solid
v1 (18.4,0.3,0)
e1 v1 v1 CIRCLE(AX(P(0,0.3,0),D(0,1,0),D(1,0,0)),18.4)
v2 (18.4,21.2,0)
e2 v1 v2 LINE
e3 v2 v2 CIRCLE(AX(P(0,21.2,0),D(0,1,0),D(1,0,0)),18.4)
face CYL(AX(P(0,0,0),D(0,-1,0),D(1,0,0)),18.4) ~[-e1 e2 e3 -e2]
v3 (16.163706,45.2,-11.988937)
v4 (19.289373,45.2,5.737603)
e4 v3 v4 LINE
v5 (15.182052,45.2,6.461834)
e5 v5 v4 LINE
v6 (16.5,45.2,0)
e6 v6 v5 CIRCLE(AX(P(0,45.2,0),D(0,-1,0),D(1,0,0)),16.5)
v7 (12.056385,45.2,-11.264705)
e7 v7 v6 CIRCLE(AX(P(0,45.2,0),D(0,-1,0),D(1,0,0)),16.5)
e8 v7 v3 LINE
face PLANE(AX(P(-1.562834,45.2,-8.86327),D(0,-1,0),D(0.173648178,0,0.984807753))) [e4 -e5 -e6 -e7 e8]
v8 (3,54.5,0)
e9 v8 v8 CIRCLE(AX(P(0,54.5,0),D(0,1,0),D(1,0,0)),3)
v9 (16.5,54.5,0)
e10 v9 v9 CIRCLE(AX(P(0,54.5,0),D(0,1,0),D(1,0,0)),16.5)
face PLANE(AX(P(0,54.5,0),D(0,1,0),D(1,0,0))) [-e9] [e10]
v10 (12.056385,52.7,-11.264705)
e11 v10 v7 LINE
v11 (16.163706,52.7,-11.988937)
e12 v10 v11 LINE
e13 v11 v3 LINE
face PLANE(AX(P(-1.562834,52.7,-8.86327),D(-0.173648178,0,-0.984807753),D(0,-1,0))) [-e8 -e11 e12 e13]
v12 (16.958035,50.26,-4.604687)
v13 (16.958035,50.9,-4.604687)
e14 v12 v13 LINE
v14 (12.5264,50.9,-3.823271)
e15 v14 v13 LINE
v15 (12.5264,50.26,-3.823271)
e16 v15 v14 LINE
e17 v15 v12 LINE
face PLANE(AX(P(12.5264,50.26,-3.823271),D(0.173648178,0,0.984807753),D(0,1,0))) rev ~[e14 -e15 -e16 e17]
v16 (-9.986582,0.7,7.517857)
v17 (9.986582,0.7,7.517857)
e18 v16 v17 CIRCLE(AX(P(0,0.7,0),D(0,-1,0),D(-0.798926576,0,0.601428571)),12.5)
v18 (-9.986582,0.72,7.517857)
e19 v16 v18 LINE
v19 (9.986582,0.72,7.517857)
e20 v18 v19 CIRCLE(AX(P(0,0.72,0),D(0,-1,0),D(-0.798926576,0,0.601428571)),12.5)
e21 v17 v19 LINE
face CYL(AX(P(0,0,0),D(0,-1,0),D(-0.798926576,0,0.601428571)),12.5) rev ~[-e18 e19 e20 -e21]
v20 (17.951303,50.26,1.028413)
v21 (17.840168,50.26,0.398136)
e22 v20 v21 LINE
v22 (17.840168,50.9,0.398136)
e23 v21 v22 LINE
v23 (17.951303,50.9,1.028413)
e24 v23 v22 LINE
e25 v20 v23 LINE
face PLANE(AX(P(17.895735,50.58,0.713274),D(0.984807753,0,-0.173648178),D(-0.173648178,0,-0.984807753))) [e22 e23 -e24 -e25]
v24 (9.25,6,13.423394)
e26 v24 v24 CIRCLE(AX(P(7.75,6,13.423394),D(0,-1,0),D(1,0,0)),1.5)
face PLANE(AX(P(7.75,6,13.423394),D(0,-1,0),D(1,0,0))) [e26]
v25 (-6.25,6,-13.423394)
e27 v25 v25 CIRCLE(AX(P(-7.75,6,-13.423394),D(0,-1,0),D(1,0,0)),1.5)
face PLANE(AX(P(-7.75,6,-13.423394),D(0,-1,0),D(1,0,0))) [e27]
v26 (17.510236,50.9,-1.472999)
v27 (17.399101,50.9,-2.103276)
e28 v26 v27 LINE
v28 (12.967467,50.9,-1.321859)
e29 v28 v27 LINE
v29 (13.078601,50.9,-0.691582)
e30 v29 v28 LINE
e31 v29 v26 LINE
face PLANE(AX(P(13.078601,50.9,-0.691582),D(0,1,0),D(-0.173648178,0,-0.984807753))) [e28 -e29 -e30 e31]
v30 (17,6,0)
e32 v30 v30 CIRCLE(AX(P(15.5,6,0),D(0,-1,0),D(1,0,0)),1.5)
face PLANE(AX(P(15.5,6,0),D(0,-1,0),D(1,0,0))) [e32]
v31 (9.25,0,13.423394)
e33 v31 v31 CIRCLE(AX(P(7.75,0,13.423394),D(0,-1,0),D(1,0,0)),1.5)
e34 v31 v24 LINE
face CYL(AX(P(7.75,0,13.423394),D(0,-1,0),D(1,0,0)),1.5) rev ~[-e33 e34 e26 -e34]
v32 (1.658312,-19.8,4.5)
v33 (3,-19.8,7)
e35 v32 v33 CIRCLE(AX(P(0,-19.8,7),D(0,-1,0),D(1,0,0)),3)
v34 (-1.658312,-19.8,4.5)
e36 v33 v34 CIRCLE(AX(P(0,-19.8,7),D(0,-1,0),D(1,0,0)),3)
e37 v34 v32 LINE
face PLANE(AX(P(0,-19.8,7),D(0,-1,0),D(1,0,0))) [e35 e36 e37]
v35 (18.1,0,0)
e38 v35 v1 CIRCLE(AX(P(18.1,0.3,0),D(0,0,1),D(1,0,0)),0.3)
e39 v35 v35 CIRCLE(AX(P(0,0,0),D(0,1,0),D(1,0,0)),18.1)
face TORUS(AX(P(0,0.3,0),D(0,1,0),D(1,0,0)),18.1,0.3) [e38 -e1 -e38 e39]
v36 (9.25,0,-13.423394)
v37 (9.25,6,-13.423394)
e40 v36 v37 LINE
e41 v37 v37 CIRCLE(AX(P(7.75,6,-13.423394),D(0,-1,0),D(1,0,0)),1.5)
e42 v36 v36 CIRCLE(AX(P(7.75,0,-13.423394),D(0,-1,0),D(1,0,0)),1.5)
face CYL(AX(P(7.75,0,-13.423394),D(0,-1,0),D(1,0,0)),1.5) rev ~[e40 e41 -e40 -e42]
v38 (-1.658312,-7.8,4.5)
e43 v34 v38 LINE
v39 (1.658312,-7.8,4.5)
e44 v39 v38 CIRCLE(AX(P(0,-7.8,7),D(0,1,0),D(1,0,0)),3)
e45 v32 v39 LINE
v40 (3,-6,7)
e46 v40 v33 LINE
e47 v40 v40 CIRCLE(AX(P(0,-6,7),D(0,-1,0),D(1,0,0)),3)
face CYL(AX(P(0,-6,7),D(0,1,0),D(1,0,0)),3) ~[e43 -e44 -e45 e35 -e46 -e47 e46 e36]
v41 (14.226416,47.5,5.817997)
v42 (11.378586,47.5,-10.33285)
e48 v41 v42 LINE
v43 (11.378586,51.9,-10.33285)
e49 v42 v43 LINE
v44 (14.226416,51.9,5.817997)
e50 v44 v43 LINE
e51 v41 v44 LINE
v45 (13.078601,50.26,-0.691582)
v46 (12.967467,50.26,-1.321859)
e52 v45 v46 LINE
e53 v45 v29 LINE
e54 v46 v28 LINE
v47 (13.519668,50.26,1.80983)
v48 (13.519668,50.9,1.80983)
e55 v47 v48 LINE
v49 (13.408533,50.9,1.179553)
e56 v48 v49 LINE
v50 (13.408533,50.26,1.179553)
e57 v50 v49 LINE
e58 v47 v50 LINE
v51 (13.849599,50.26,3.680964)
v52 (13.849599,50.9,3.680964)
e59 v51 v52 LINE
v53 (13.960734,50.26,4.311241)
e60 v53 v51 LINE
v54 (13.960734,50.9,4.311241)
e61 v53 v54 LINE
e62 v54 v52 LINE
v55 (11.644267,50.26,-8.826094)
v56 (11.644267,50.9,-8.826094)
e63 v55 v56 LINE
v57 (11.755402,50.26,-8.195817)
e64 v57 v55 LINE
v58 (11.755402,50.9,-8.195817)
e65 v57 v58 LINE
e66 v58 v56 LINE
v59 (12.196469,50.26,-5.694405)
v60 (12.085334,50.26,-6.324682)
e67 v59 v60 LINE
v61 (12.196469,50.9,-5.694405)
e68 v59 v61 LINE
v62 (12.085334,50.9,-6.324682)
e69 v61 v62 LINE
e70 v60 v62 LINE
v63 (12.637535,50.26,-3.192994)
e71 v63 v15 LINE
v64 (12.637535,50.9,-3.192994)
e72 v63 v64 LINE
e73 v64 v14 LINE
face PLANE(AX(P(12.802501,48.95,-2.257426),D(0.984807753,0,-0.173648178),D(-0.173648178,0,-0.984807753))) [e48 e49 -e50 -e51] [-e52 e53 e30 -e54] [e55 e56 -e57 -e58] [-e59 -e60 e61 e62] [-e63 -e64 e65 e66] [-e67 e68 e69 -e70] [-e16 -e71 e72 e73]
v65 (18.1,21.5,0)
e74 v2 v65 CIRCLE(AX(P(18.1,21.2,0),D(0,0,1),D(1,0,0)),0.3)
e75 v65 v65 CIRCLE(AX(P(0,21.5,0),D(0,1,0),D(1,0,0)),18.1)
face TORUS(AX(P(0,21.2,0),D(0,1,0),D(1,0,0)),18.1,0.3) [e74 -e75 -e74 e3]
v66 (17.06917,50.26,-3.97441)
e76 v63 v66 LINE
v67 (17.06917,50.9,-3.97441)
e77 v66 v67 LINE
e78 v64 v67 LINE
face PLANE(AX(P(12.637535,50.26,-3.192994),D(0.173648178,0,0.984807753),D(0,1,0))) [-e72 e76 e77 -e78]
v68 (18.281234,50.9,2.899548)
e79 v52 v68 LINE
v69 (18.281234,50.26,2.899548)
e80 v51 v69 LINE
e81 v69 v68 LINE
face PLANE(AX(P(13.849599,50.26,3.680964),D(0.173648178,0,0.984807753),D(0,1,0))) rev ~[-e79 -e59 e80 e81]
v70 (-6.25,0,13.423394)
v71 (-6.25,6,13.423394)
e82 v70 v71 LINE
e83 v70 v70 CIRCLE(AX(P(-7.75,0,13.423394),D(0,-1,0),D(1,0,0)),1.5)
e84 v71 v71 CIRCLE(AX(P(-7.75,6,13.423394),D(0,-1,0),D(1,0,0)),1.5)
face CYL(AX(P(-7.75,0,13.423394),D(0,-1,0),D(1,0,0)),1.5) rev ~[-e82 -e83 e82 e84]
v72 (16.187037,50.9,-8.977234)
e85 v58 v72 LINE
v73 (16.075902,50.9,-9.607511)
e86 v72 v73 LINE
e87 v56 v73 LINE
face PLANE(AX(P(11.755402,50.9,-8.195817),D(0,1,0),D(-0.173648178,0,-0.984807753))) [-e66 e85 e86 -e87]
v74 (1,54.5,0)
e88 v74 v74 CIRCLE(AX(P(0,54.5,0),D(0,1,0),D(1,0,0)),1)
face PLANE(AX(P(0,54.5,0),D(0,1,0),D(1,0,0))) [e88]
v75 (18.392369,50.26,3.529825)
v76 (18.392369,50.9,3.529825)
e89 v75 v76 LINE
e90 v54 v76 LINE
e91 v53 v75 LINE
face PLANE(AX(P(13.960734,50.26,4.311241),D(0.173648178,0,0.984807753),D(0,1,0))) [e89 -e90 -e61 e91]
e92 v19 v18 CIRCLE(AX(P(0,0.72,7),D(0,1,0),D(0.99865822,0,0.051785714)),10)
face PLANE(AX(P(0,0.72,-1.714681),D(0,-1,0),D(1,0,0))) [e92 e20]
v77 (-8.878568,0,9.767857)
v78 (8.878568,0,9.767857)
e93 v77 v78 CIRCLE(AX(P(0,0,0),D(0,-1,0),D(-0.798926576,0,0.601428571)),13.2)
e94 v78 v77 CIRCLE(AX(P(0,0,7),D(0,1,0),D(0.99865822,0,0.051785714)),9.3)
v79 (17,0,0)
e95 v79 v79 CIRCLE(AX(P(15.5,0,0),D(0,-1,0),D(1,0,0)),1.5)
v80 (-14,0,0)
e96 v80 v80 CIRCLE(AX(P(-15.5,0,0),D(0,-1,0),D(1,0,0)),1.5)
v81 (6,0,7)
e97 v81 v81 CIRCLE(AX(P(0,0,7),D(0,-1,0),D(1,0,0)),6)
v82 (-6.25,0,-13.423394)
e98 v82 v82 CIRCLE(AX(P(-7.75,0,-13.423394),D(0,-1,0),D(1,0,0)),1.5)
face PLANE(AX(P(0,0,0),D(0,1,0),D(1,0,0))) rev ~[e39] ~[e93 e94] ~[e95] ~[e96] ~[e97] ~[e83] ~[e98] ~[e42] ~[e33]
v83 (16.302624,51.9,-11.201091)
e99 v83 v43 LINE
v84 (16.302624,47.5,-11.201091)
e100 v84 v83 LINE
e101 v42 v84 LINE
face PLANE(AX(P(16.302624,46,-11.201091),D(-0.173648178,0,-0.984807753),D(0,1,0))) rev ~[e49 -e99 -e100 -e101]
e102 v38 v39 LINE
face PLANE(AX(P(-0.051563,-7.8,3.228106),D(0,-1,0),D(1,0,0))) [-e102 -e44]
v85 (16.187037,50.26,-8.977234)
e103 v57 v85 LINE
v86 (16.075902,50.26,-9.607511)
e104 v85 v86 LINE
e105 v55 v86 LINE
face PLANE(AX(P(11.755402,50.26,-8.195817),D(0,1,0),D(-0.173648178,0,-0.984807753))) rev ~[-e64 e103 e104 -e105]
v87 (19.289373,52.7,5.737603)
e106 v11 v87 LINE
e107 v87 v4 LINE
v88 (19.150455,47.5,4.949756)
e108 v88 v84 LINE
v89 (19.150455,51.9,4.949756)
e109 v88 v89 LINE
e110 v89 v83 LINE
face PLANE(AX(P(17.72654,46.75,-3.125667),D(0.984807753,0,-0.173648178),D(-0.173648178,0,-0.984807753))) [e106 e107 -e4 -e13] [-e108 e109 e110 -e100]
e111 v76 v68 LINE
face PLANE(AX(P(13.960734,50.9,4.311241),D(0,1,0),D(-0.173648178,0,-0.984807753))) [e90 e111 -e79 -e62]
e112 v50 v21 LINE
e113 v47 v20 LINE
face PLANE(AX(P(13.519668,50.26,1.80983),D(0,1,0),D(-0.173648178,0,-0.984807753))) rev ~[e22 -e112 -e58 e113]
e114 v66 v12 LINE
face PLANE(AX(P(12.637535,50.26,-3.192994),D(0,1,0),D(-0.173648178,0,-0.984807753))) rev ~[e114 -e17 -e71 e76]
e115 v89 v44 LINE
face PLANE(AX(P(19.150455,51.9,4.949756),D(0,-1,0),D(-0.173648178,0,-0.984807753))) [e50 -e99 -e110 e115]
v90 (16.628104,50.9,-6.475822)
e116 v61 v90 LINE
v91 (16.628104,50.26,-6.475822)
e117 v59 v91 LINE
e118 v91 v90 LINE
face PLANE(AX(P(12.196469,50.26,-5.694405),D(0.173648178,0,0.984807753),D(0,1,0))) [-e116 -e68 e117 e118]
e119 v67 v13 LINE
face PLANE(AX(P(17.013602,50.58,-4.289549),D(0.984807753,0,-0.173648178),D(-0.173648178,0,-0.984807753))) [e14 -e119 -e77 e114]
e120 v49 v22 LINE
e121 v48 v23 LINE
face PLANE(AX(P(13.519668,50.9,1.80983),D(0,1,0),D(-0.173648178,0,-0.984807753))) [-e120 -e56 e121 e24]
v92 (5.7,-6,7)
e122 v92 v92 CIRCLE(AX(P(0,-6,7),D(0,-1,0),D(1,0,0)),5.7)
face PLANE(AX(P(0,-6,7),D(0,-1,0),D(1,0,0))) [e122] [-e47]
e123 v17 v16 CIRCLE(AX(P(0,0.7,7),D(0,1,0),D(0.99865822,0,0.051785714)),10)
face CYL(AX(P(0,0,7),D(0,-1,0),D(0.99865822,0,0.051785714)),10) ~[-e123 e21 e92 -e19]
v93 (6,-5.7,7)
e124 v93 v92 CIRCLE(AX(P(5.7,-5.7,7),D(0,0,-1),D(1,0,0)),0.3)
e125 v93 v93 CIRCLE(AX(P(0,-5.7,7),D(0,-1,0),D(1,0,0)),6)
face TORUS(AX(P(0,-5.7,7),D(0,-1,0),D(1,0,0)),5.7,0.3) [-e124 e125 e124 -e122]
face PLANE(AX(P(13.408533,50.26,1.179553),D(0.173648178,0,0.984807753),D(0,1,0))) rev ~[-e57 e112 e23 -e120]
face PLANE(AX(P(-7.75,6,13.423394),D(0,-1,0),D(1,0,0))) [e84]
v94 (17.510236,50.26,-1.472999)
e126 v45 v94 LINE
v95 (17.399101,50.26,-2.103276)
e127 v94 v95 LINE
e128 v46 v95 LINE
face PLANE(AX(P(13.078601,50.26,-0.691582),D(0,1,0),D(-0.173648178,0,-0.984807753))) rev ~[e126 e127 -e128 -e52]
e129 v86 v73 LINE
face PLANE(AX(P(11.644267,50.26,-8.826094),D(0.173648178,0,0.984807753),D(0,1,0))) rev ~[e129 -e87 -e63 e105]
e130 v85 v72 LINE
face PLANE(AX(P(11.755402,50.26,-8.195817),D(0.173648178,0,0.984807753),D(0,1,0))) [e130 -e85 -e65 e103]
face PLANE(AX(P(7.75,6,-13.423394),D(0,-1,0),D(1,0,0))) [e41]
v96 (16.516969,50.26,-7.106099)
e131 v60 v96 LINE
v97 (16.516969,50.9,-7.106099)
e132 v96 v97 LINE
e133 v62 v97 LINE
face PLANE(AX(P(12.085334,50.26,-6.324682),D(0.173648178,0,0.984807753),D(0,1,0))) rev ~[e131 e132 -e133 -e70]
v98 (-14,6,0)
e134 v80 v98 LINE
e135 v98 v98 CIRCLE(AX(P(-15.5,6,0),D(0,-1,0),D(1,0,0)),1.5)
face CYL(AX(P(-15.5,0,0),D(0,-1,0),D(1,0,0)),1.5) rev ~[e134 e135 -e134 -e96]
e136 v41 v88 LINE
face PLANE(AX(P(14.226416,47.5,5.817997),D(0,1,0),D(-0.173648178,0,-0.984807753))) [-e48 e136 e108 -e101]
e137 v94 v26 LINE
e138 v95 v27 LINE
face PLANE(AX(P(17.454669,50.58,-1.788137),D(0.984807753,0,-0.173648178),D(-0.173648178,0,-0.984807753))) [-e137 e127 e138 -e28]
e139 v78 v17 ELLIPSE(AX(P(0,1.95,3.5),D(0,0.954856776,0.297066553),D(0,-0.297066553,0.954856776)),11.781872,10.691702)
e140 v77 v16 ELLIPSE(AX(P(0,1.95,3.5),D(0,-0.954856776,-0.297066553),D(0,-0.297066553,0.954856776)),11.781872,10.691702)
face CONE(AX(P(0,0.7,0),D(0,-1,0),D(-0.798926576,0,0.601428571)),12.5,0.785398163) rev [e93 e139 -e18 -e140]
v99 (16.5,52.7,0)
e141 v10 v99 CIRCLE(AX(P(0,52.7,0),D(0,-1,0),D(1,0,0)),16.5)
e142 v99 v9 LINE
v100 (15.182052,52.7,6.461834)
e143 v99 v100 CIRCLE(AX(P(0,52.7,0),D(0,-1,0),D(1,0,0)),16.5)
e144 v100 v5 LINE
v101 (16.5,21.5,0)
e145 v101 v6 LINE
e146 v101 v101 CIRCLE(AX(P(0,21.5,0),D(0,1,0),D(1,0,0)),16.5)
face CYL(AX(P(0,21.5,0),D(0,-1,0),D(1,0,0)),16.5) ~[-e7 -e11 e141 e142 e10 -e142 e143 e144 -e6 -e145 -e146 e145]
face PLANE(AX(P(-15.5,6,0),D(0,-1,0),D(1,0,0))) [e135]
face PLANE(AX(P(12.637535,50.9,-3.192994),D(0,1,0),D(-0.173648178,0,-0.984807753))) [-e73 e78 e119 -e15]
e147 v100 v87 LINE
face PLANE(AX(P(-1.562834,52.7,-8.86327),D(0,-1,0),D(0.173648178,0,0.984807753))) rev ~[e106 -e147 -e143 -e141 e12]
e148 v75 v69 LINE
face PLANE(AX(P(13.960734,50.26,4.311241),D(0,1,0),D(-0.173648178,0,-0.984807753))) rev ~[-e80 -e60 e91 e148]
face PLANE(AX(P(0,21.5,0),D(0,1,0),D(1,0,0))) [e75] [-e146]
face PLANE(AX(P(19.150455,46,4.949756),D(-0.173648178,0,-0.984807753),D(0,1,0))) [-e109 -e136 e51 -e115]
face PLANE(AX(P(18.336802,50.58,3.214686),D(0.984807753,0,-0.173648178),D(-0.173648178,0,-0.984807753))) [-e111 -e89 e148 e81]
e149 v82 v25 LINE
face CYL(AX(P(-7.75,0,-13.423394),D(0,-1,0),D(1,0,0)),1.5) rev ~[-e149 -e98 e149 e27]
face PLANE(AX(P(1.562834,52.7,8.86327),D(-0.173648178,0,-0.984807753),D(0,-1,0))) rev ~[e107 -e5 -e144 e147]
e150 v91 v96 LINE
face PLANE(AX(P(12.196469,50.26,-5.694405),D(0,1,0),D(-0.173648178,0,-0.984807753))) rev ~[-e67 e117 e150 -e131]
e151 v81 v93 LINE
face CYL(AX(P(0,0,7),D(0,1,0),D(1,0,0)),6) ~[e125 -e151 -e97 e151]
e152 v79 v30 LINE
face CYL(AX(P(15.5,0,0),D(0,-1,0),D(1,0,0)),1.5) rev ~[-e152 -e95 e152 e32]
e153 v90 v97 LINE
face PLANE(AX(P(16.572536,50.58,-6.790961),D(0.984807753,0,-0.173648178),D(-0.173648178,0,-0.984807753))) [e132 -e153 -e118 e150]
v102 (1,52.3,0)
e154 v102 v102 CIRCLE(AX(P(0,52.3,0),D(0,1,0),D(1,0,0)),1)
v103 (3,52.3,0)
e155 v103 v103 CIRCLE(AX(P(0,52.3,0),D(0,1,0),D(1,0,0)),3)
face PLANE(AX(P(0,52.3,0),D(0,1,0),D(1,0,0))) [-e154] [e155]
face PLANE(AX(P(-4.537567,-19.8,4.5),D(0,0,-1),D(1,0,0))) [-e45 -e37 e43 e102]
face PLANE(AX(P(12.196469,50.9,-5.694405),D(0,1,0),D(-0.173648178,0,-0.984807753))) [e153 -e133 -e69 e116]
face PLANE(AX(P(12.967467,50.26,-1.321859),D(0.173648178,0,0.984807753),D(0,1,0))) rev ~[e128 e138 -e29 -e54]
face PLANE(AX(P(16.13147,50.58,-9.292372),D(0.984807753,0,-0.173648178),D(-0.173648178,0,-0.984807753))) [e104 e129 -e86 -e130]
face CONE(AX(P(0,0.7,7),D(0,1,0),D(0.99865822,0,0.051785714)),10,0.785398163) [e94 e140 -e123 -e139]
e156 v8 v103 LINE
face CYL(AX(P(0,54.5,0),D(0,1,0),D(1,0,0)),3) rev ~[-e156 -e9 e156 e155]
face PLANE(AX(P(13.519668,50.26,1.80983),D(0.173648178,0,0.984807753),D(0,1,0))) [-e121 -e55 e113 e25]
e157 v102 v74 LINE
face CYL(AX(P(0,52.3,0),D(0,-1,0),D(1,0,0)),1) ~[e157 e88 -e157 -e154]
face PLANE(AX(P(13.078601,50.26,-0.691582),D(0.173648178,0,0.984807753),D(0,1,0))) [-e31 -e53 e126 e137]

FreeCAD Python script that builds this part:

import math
import FreeCAD as App
import Part
import Sketcher
Q = App.Units.Quantity


def edges_at(feature, points):
    """Names of the edges that pass closest to the given points."""
    edges = feature.Shape.Edges
    near = lambda p: min(range(len(edges)), key=lambda i: edges[i].distToShape(Part.Vertex(*p))[0])
    return sorted({f"Edge{near(p) + 1}" for p in points})

doc = App.newDocument("Part")
body = doc.addObject("PartDesign::Body", "Body")

# Sketch on XZ plane
sketch1 = doc.addObject("Sketcher::SketchObject", "Sketch")
body.addObject(sketch1)
sketch1.AttachmentSupport = (doc.XZ_Plane, [""])
sketch1.MapMode = "FlatFace"
sketch1.addGeometry(Part.Circle(App.Vector(0, 0, 0), App.Vector(0, 0, 1), 18.4), False)
sketch1.addConstraint(Sketcher.Constraint("Coincident", 0, 3, -1, 1))
sketch1.addConstraint(Sketcher.Constraint("Diameter", 0, Q("36.8 mm")))
pad1 = doc.addObject("PartDesign::Pad", "Pad")
body.addObject(pad1)
pad1.Profile = sketch1
pad1.Length = 21.5
pad1.Reversed = True

# Sketch on XZ plane
sketch2 = doc.addObject("Sketcher::SketchObject", "Sketch001")
body.addObject(sketch2)
sketch2.AttachmentSupport = (doc.XZ_Plane, [""])
sketch2.MapMode = "FlatFace"
sketch2.addGeometry(Part.Circle(App.Vector(0, 7, 0), App.Vector(0, 0, 1), 6), False)
sketch2.addConstraint(Sketcher.Constraint("PointOnObject", 0, 3, -2))
sketch2.addConstraint(Sketcher.Constraint("Diameter", 0, Q("12 mm")))
sketch2.addConstraint(Sketcher.Constraint("DistanceY", -1, 1, 0, 3, Q("7 mm")))
pad2 = doc.addObject("PartDesign::Pad", "Pad001")
body.addObject(pad2)
pad2.Profile = sketch2
pad2.Length = 6

# Sketch on XZ plane
sketch3 = doc.addObject("Sketcher::SketchObject", "Sketch002")
body.addObject(sketch3)
sketch3.AttachmentSupport = (doc.XZ_Plane, [""])
sketch3.MapMode = "FlatFace"
sketch3.AttachmentOffset = App.Placement(App.Vector(0, 0, 6), App.Rotation())
sketch3.addGeometry(Part.Circle(App.Vector(0, 7, 0), App.Vector(0, 0, 1), 3), False)
sketch3.addConstraint(Sketcher.Constraint("PointOnObject", 0, 3, -2))
sketch3.addConstraint(Sketcher.Constraint("Diameter", 0, Q("6 mm")))
sketch3.addConstraint(Sketcher.Constraint("DistanceY", -1, 1, 0, 3, Q("7 mm")))
pad3 = doc.addObject("PartDesign::Pad", "Pad002")
body.addObject(pad3)
pad3.Profile = sketch3
pad3.Length = 13.8

# Sketch on XZ plane
sketch4 = doc.addObject("Sketcher::SketchObject", "Sketch003")
body.addObject(sketch4)
sketch4.AttachmentSupport = (doc.XZ_Plane, [""])
sketch4.MapMode = "FlatFace"
sketch4.AttachmentOffset = App.Placement(App.Vector(0, 0, 19.8), App.Rotation())
sketch4.addGeometry(Part.LineSegment(App.Vector(-4.537567, 4.5, 0), App.Vector(-4.537567, 1.956212, 0)), False)
sketch4.addGeometry(Part.LineSegment(App.Vector(-4.537567, 1.956212, 0), App.Vector(4.434441, 1.956212, 0)), False)
sketch4.addGeometry(Part.LineSegment(App.Vector(4.434441, 1.956212, 0), App.Vector(4.434441, 4.5, 0)), False)
sketch4.addGeometry(Part.LineSegment(App.Vector(4.434441, 4.5, 0), App.Vector(-4.537567, 4.5, 0)), False)
sketch4.addConstraint(Sketcher.Constraint("Coincident", 0, 2, 1, 1))
sketch4.addConstraint(Sketcher.Constraint("Coincident", 1, 2, 2, 1))
sketch4.addConstraint(Sketcher.Constraint("Coincident", 2, 2, 3, 1))
sketch4.addConstraint(Sketcher.Constraint("Coincident", 3, 2, 0, 1))
sketch4.addConstraint(Sketcher.Constraint("Vertical", 0))
sketch4.addConstraint(Sketcher.Constraint("Horizontal", 1))
sketch4.addConstraint(Sketcher.Constraint("Vertical", 2))
sketch4.addConstraint(Sketcher.Constraint("Horizontal", 3))
sketch4.addConstraint(Sketcher.Constraint("DistanceY", -1, 1, 2, 2, Q("4.5 mm")))
sketch4.addConstraint(Sketcher.Constraint("DistanceX", 1, 1, 1, 2, Q("8.972008 mm")))
sketch4.addConstraint(Sketcher.Constraint("DistanceY", 0, 2, 0, 1, Q("2.543788 mm")))
sketch4.addConstraint(Sketcher.Constraint("DistanceX", -1, 1, 1, 2, Q("4.434441 mm")))
pocket1 = doc.addObject("PartDesign::Pocket", "Pocket")
body.addObject(pocket1)
pocket1.Profile = sketch4
pocket1.Length = 12

# Sketch on XZ plane
sketch5 = doc.addObject("Sketcher::SketchObject", "Sketch004")
body.addObject(sketch5)
sketch5.AttachmentSupport = (doc.XZ_Plane, [""])
sketch5.MapMode = "FlatFace"
sketch5.addGeometry(Part.Circle(App.Vector(-15.5, 0, 0), App.Vector(0, 0, 1), 1.5), False)
sketch5.addGeometry(Part.Circle(App.Vector(-7.75, 13.423394, 0), App.Vector(0, 0, 1), 1.5), False)
sketch5.addGeometry(Part.Circle(App.Vector(7.75, 13.423394, 0), App.Vector(0, 0, 1), 1.5), False)
sketch5.addGeometry(Part.Circle(App.Vector(15.5, 0, 0), App.Vector(0, 0, 1), 1.5), False)
sketch5.addGeometry(Part.Circle(App.Vector(7.75, -13.423394, 0), App.Vector(0, 0, 1), 1.5), False)
sketch5.addGeometry(Part.Circle(App.Vector(-7.75, -13.423394, 0), App.Vector(0, 0, 1), 1.5), False)
sketch5.addConstraint(Sketcher.Constraint("Equal", 0, 1))
sketch5.addConstraint(Sketcher.Constraint("Equal", 1, 2))
sketch5.addConstraint(Sketcher.Constraint("Equal", 2, 3))
sketch5.addConstraint(Sketcher.Constraint("Equal", 3, 4))
sketch5.addConstraint(Sketcher.Constraint("Equal", 4, 5))
sketch5.addConstraint(Sketcher.Constraint("Symmetric", 0, 3, 3, 3, -1, 1))
sketch5.addConstraint(Sketcher.Constraint("Symmetric", 1, 3, 4, 3, -1, 1))
sketch5.addConstraint(Sketcher.Constraint("Symmetric", 2, 3, 5, 3, -1, 1))
sketch5.addConstraint(Sketcher.Constraint("Symmetric", 1, 3, 2, 3, -2))
sketch5.addConstraint(Sketcher.Constraint("PointOnObject", 0, 3, -1))
sketch5.addConstraint(Sketcher.Constraint("Diameter", 0, Q("3 mm")))
sketch5.addConstraint(Sketcher.Constraint("DistanceX", 0, 3, 3, 3, Q("31 mm")))
sketch5.addConstraint(Sketcher.Constraint("DistanceX", 1, 3, 2, 3, Q("15.5 mm")))
sketch5.addConstraint(Sketcher.Constraint("DistanceY", -1, 1, 1, 3, Q("13.423394 mm")))
pocket2 = doc.addObject("PartDesign::Pocket", "Pocket001")
body.addObject(pocket2)
pocket2.Profile = sketch5
pocket2.Length = 6

# Sketch on XZ plane
sketch6 = doc.addObject("Sketcher::SketchObject", "Sketch005")
body.addObject(sketch6)
sketch6.AttachmentSupport = (doc.XZ_Plane, [""])
sketch6.MapMode = "FlatFace"
sketch6.addGeometry(Part.ArcOfCircle(Part.Circle(App.Vector(0, 0, 0), App.Vector(0, 0, 1), 12.5), math.radians(143.02772), math.radians(396.97228)), False)
sketch6.addGeometry(Part.ArcOfCircle(Part.Circle(App.Vector(0, 7, 0), App.Vector(0, 0, 1), 10), math.radians(177.031569), math.radians(362.968431)), False)
sketch6.addConstraint(Sketcher.Constraint("Coincident", 0, 1, 1, 1))
sketch6.addConstraint(Sketcher.Constraint("Coincident", 1, 2, 0, 2))
sketch6.addConstraint(Sketcher.Constraint("Coincident", 0, 3, -1, 1))
sketch6.addConstraint(Sketcher.Constraint("PointOnObject", 1, 3, -2))
sketch6.addConstraint(Sketcher.Constraint("Radius", 1, Q("10 mm")))
sketch6.addConstraint(Sketcher.Constraint("Radius", 0, Q("12.5 mm")))
sketch6.addConstraint(Sketcher.Constraint("DistanceY", -1, 1, 1, 3, Q("7 mm")))
pocket3 = doc.addObject("PartDesign::Pocket", "Pocket002")
body.addObject(pocket3)
pocket3.Profile = sketch6
pocket3.Length = 0.72

# Sketch on XZ plane
sketch7 = doc.addObject("Sketcher::SketchObject", "Sketch006")
body.addObject(sketch7)
sketch7.AttachmentSupport = (doc.XZ_Plane, [""])
sketch7.MapMode = "FlatFace"
sketch7.AttachmentOffset = App.Placement(App.Vector(0, 0, -21.5), App.Rotation())
sketch7.addGeometry(Part.Circle(App.Vector(0, 0, 0), App.Vector(0, 0, 1), 16.5), False)
sketch7.addConstraint(Sketcher.Constraint("Coincident", 0, 3, -1, 1))
sketch7.addConstraint(Sketcher.Constraint("Diameter", 0, Q("33 mm")))
pad4 = doc.addObject("PartDesign::Pad", "Pad003")
body.addObject(pad4)
pad4.Profile = sketch7
pad4.Length = 33
pad4.Reversed = True

# Sketch on an angled plane
sketch8 = doc.addObject("Sketcher::SketchObject", "Sketch007")
body.addObject(sketch8)
sketch8.Placement = App.Placement(App.Vector(0, 0, 0), App.Rotation(App.Vector(0, -1, 0), App.Vector(0.173648178, 0, 0.984807753), App.Vector(-0.984807753, 0, 0.173648178), "ZXY"))
sketch8.addGeometry(Part.LineSegment(App.Vector(-52.7, 9, 0), App.Vector(-52.7, -9, 0)), False)
sketch8.addGeometry(Part.LineSegment(App.Vector(-52.7, -9, 0), App.Vector(-45.2, -9, 0)), False)
sketch8.addGeometry(Part.LineSegment(App.Vector(-45.2, -9, 0), App.Vector(-45.2, 9, 0)), False)
sketch8.addGeometry(Part.LineSegment(App.Vector(-45.2, 9, 0), App.Vector(-52.7, 9, 0)), False)
sketch8.addConstraint(Sketcher.Constraint("Coincident", 0, 2, 1, 1))
sketch8.addConstraint(Sketcher.Constraint("Coincident", 1, 2, 2, 1))
sketch8.addConstraint(Sketcher.Constraint("Coincident", 2, 2, 3, 1))
sketch8.addConstraint(Sketcher.Constraint("Coincident", 3, 2, 0, 1))
sketch8.addConstraint(Sketcher.Constraint("Vertical", 0))
sketch8.addConstraint(Sketcher.Constraint("Horizontal", 1))
sketch8.addConstraint(Sketcher.Constraint("Vertical", 2))
sketch8.addConstraint(Sketcher.Constraint("Horizontal", 3))
sketch8.addConstraint(Sketcher.Constraint("DistanceY", 0, 2, 0, 1, Q("18 mm")))
sketch8.addConstraint(Sketcher.Constraint("DistanceX", 1, 1, 1, 2, Q("7.5 mm")))
sketch8.addConstraint(Sketcher.Constraint("DistanceY", 0, 2, -1, 1, Q("9 mm")))
sketch8.addConstraint(Sketcher.Constraint("DistanceX", 0, 2, -1, 1, Q("52.7 mm")))
pad5 = doc.addObject("PartDesign::Pad", "Pad004")
body.addObject(pad5)
pad5.Profile = sketch8
pad5.Length = 18
pad5.Reversed = True

# Sketch on an angled plane
sketch9 = doc.addObject("Sketcher::SketchObject", "Sketch008")
body.addObject(sketch9)
sketch9.Placement = App.Placement(App.Vector(17.72654, 0, -3.125667), App.Rotation(App.Vector(-0.173648178, 0, -0.984807753), App.Vector(0, 1, 0), App.Vector(0.984807753, 0, -0.173648178), "ZXY"))
sketch9.addGeometry(Part.LineSegment(App.Vector(-8.2, 51.9, 0), App.Vector(-8.2, 46, 0)), False)
sketch9.addGeometry(Part.LineSegment(App.Vector(-8.2, 46, 0), App.Vector(8.2, 46, 0)), False)
sketch9.addGeometry(Part.LineSegment(App.Vector(8.2, 46, 0), App.Vector(8.2, 51.9, 0)), False)
sketch9.addGeometry(Part.LineSegment(App.Vector(8.2, 51.9, 0), App.Vector(-8.2, 51.9, 0)), False)
sketch9.addConstraint(Sketcher.Constraint("Coincident", 0, 2, 1, 1))
sketch9.addConstraint(Sketcher.Constraint("Coincident", 1, 2, 2, 1))
sketch9.addConstraint(Sketcher.Constraint("Coincident", 2, 2, 3, 1))
sketch9.addConstraint(Sketcher.Constraint("Coincident", 3, 2, 0, 1))
sketch9.addConstraint(Sketcher.Constraint("Vertical", 0))
sketch9.addConstraint(Sketcher.Constraint("Horizontal", 1))
sketch9.addConstraint(Sketcher.Constraint("Vertical", 2))
sketch9.addConstraint(Sketcher.Constraint("Horizontal", 3))
sketch9.addConstraint(Sketcher.Constraint("DistanceX", 1, 1, 1, 2, Q("16.4 mm")))
sketch9.addConstraint(Sketcher.Constraint("DistanceY", 0, 2, 0, 1, Q("5.9 mm")))
sketch9.addConstraint(Sketcher.Constraint("DistanceY", -1, 1, 0, 2, Q("46 mm")))
sketch9.addConstraint(Sketcher.Constraint("DistanceX", 0, 2, -1, 1, Q("8.2 mm")))
pocket4 = doc.addObject("PartDesign::Pocket", "Pocket003")
body.addObject(pocket4)
pocket4.Profile = sketch9
pocket4.Length = 5

# Sketch on an angled plane
sketch10 = doc.addObject("Sketcher::SketchObject", "Sketch009")
body.addObject(sketch10)
sketch10.Placement = App.Placement(App.Vector(12.802501, 0, -2.257426), App.Rotation(App.Vector(-0.173648178, 0, -0.984807753), App.Vector(0, 1, 0), App.Vector(0.984807753, 0, -0.173648178), "ZXY"))
sketch10.addGeometry(Part.LineSegment(App.Vector(-1.59, 50.9, 0), App.Vector(-1.59, 50.26, 0)), False)
sketch10.addGeometry(Part.LineSegment(App.Vector(-1.59, 50.26, 0), App.Vector(-0.95, 50.26, 0)), False)
sketch10.addGeometry(Part.LineSegment(App.Vector(-0.95, 50.26, 0), App.Vector(-0.95, 50.9, 0)), False)
sketch10.addGeometry(Part.LineSegment(App.Vector(-0.95, 50.9, 0), App.Vector(-1.59, 50.9, 0)), False)
sketch10.addGeometry(Part.LineSegment(App.Vector(0.95, 50.9, 0), App.Vector(0.95, 50.26, 0)), False)
sketch10.addGeometry(Part.LineSegment(App.Vector(0.95, 50.26, 0), App.Vector(1.59, 50.26, 0)), False)
sketch10.addGeometry(Part.LineSegment(App.Vector(1.59, 50.26, 0), App.Vector(1.59, 50.9, 0)), False)
sketch10.addGeometry(Part.LineSegment(App.Vector(1.59, 50.9, 0), App.Vector(0.95, 50.9, 0)), False)
sketch10.addGeometry(Part.LineSegment(App.Vector(3.49, 50.9, 0), App.Vector(3.49, 50.26, 0)), False)
sketch10.addGeometry(Part.LineSegment(App.Vector(3.49, 50.26, 0), App.Vector(4.13, 50.26, 0)), False)
sketch10.addGeometry(Part.LineSegment(App.Vector(4.13, 50.26, 0), App.Vector(4.13, 50.9, 0)), False)
sketch10.addGeometry(Part.LineSegment(App.Vector(4.13, 50.9, 0), App.Vector(3.49, 50.9, 0)), False)
sketch10.addGeometry(Part.LineSegment(App.Vector(6.03, 50.9, 0), App.Vector(6.03, 50.26, 0)), False)
sketch10.addGeometry(Part.LineSegment(App.Vector(6.03, 50.26, 0), App.Vector(6.67, 50.26, 0)), False)
sketch10.addGeometry(Part.LineSegment(App.Vector(6.67, 50.26, 0), App.Vector(6.67, 50.9, 0)), False)
sketch10.addGeometry(Part.LineSegment(App.Vector(6.67, 50.9, 0), App.Vector(6.03, 50.9, 0)), False)
sketch10.addGeometry(Part.LineSegment(App.Vector(-6.67, 50.9, 0), App.Vector(-6.67, 50.26, 0)), False)
sketch10.addGeometry(Part.LineSegment(App.Vector(-6.67, 50.26, 0), App.Vector(-6.03, 50.26, 0)), False)
sketch10.addGeometry(Part.LineSegment(App.Vector(-6.03, 50.26, 0), App.Vector(-6.03, 50.9, 0)), False)
sketch10.addGeometry(Part.LineSegment(App.Vector(-6.03, 50.9, 0), App.Vector(-6.67, 50.9, 0)), False)
sketch10.addGeometry(Part.LineSegment(App.Vector(-4.13, 50.9, 0), App.Vector(-4.13, 50.26, 0)), False)
sketch10.addGeometry(Part.LineSegment(App.Vector(-4.13, 50.26, 0), App.Vector(-3.49, 50.26, 0)), False)
sketch10.addGeometry(Part.LineSegment(App.Vector(-3.49, 50.26, 0), App.Vector(-3.49, 50.9, 0)), False)
sketch10.addGeometry(Part.LineSegment(App.Vector(-3.49, 50.9, 0), App.Vector(-4.13, 50.9, 0)), False)
sketch10.addConstraint(Sketcher.Constraint("Coincident", 0, 2, 1, 1))
sketch10.addConstraint(Sketcher.Constraint("Coincident", 1, 2, 2, 1))
sketch10.addConstraint(Sketcher.Constraint("Coincident", 2, 2, 3, 1))
sketch10.addConstraint(Sketcher.Constraint("Coincident", 3, 2, 0, 1))
sketch10.addConstraint(Sketcher.Constraint("Coincident", 4, 2, 5, 1))
sketch10.addConstraint(Sketcher.Constraint("Coincident", 5, 2, 6, 1))
sketch10.addConstraint(Sketcher.Constraint("Coincident", 6, 2, 7, 1))
sketch10.addConstraint(Sketcher.Constraint("Coincident", 7, 2, 4, 1))
sketch10.addConstraint(Sketcher.Constraint("Coincident", 8, 2, 9, 1))
sketch10.addConstraint(Sketcher.Constraint("Coincident", 9, 2, 10, 1))
sketch10.addConstraint(Sketcher.Constraint("Coincident", 10, 2, 11, 1))
sketch10.addConstraint(Sketcher.Constraint("Coincident", 11, 2, 8, 1))
sketch10.addConstraint(Sketcher.Constraint("Coincident", 12, 2, 13, 1))
sketch10.addConstraint(Sketcher.Constraint("Coincident", 13, 2, 14, 1))
sketch10.addConstraint(Sketcher.Constraint("Coincident", 14, 2, 15, 1))
sketch10.addConstraint(Sketcher.Constraint("Coincident", 15, 2, 12, 1))
sketch10.addConstraint(Sketcher.Constraint("Coincident", 16, 2, 17, 1))
sketch10.addConstraint(Sketcher.Constraint("Coincident", 17, 2, 18, 1))
sketch10.addConstraint(Sketcher.Constraint("Coincident", 18, 2, 19, 1))
sketch10.addConstraint(Sketcher.Constraint("Coincident", 19, 2, 16, 1))
sketch10.addConstraint(Sketcher.Constraint("Coincident", 20, 2, 21, 1))
sketch10.addConstraint(Sketcher.Constraint("Coincident", 21, 2, 22, 1))
sketch10.addConstraint(Sketcher.Constraint("Coincident", 22, 2, 23, 1))
sketch10.addConstraint(Sketcher.Constraint("Coincident", 23, 2, 20, 1))
sketch10.addConstraint(Sketcher.Constraint("Vertical", 0))
sketch10.addConstraint(Sketcher.Constraint("Horizontal", 1))
sketch10.addConstraint(Sketcher.Constraint("Vertical", 2))
sketch10.addConstraint(Sketcher.Constraint("Horizontal", 3))
sketch10.addConstraint(Sketcher.Constraint("Vertical", 4))
sketch10.addConstraint(Sketcher.Constraint("Horizontal", 5))
sketch10.addConstraint(Sketcher.Constraint("Vertical", 6))
sketch10.addConstraint(Sketcher.Constraint("Horizontal", 7))
sketch10.addConstraint(Sketcher.Constraint("Vertical", 8))
sketch10.addConstraint(Sketcher.Constraint("Horizontal", 9))
sketch10.addConstraint(Sketcher.Constraint("Vertical", 10))
sketch10.addConstraint(Sketcher.Constraint("Horizontal", 11))
sketch10.addConstraint(Sketcher.Constraint("Vertical", 12))
sketch10.addConstraint(Sketcher.Constraint("Horizontal", 13))
sketch10.addConstraint(Sketcher.Constraint("Vertical", 14))
sketch10.addConstraint(Sketcher.Constraint("Horizontal", 15))
sketch10.addConstraint(Sketcher.Constraint("Vertical", 16))
sketch10.addConstraint(Sketcher.Constraint("Horizontal", 17))
sketch10.addConstraint(Sketcher.Constraint("Vertical", 18))
sketch10.addConstraint(Sketcher.Constraint("Horizontal", 19))
sketch10.addConstraint(Sketcher.Constraint("Vertical", 20))
sketch10.addConstraint(Sketcher.Constraint("Horizontal", 21))
sketch10.addConstraint(Sketcher.Constraint("Vertical", 22))
sketch10.addConstraint(Sketcher.Constraint("Horizontal", 23))
sketch10.addConstraint(Sketcher.Constraint("Symmetric", 1, 2, 4, 2, -2))
sketch10.addConstraint(Sketcher.Constraint("Symmetric", 3, 2, 6, 2, -2))
sketch10.addConstraint(Sketcher.Constraint("Symmetric", 13, 2, 16, 2, -2))
sketch10.addConstraint(Sketcher.Constraint("Symmetric", 15, 2, 18, 2, -2))
sketch10.addConstraint(Sketcher.Constraint("Symmetric", 9, 2, 20, 2, -2))
sketch10.addConstraint(Sketcher.Constraint("Symmetric", 11, 2, 22, 2, -2))
sketch10.addConstraint(Sketcher.Constraint("Horizontal", 5, 2, 8, 2))
sketch10.addConstraint(Sketcher.Constraint("Horizontal", 7, 2, 10, 2))
sketch10.addConstraint(Sketcher.Constraint("Horizontal", 9, 2, 12, 2))
sketch10.addConstraint(Sketcher.Constraint("Horizontal", 11, 2, 14, 2))
sketch10.addConstraint(Sketcher.Constraint("Equal", 7, 9))
sketch10.addConstraint(Sketcher.Constraint("Equal", 11, 13))
sketch10.addConstraint(Sketcher.Constraint("Equal", 23, 0))
sketch10.addConstraint(Sketcher.Constraint("DistanceX", 1, 1, 1, 2, Q("0.64 mm")))
sketch10.addConstraint(Sketcher.Constraint("DistanceY", -1, 1, 2, 2, Q("50.9 mm")))
sketch10.addConstraint(Sketcher.Constraint("DistanceX", 1, 2, 4, 2, Q("1.9 mm")))
sketch10.addConstraint(Sketcher.Constraint("DistanceX", 5, 2, 8, 2, Q("1.9 mm")))
sketch10.addConstraint(Sketcher.Constraint("DistanceX", 9, 2, 12, 2, Q("1.9 mm")))
pad6 = doc.addObject("PartDesign::Pad", "Pad005")
body.addObject(pad6)
pad6.Profile = sketch10
pad6.Length = 4.5

# Sketch on an angled plane
sketch11 = doc.addObject("Sketcher::SketchObject", "Sketch010")
body.addObject(sketch11)
sketch11.Placement = App.Placement(App.Vector(12.802501, 0, -2.257426), App.Rotation(App.Vector(-0.173648178, 0, -0.984807753), App.Vector(0, 1, 0), App.Vector(0.984807753, 0, -0.173648178), "ZXY"))
sketch11.addGeometry(Part.LineSegment(App.Vector(-8.2, 47.5, 0), App.Vector(-8.2, 46, 0)), False)
sketch11.addGeometry(Part.LineSegment(App.Vector(-8.2, 46, 0), App.Vector(8.2, 46, 0)), False)
sketch11.addGeometry(Part.LineSegment(App.Vector(8.2, 46, 0), App.Vector(8.2, 47.5, 0)), False)
sketch11.addGeometry(Part.LineSegment(App.Vector(8.2, 47.5, 0), App.Vector(-8.2, 47.5, 0)), False)
sketch11.addConstraint(Sketcher.Constraint("Coincident", 0, 2, 1, 1))
sketch11.addConstraint(Sketcher.Constraint("Coincident", 1, 2, 2, 1))
sketch11.addConstraint(Sketcher.Constraint("Coincident", 2, 2, 3, 1))
sketch11.addConstraint(Sketcher.Constraint("Coincident", 3, 2, 0, 1))
sketch11.addConstraint(Sketcher.Constraint("Vertical", 0))
sketch11.addConstraint(Sketcher.Constraint("Horizontal", 1))
sketch11.addConstraint(Sketcher.Constraint("Vertical", 2))
sketch11.addConstraint(Sketcher.Constraint("Horizontal", 3))
sketch11.addConstraint(Sketcher.Constraint("DistanceX", 1, 1, 1, 2, Q("16.4 mm")))
sketch11.addConstraint(Sketcher.Constraint("DistanceY", 0, 2, 0, 1, Q("1.5 mm")))
sketch11.addConstraint(Sketcher.Constraint("DistanceY", -1, 1, 0, 2, Q("46 mm")))
sketch11.addConstraint(Sketcher.Constraint("DistanceX", 0, 2, -1, 1, Q("8.2 mm")))
pad7 = doc.addObject("PartDesign::Pad", "Pad006")
body.addObject(pad7)
pad7.Profile = sketch11
pad7.Length = 5

# Sketch on XZ plane
sketch12 = doc.addObject("Sketcher::SketchObject", "Sketch011")
body.addObject(sketch12)
sketch12.AttachmentSupport = (doc.XZ_Plane, [""])
sketch12.MapMode = "FlatFace"
sketch12.AttachmentOffset = App.Placement(App.Vector(0, 0, -54.5), App.Rotation())
sketch12.addGeometry(Part.Circle(App.Vector(0, 0, 0), App.Vector(0, 0, 1), 3), False)
sketch12.addConstraint(Sketcher.Constraint("Coincident", 0, 3, -1, 1))
sketch12.addConstraint(Sketcher.Constraint("Diameter", 0, Q("6 mm")))
pocket5 = doc.addObject("PartDesign::Pocket", "Pocket004")
body.addObject(pocket5)
pocket5.Profile = sketch12
pocket5.Length = 2.2
pocket5.Reversed = True

# Sketch on XZ plane
sketch13 = doc.addObject("Sketcher::SketchObject", "Sketch012")
body.addObject(sketch13)
sketch13.AttachmentSupport = (doc.XZ_Plane, [""])
sketch13.MapMode = "FlatFace"
sketch13.AttachmentOffset = App.Placement(App.Vector(0, 0, -52.3), App.Rotation())
sketch13.addGeometry(Part.Circle(App.Vector(0, 0, 0), App.Vector(0, 0, 1), 1), False)
sketch13.addConstraint(Sketcher.Constraint("Coincident", 0, 3, -1, 1))
sketch13.addConstraint(Sketcher.Constraint("Diameter", 0, Q("2 mm")))
pad8 = doc.addObject("PartDesign::Pad", "Pad007")
body.addObject(pad8)
pad8.Profile = sketch13
pad8.Length = 2.2
pad8.Reversed = True
doc.recompute()

chamfer = doc.addObject("PartDesign::Chamfer", "Chamfer")
body.addObject(chamfer)
chamfer.Base = (pad8, edges_at(pad8, [(0, 0, -12.5), (0, 0, -3)]))
chamfer.Size = 0.7
doc.recompute()

fillet = doc.addObject("PartDesign::Fillet", "Fillet")
body.addObject(fillet)
fillet.Base = (chamfer, edges_at(chamfer, [(-6, -6, 7)]))
fillet.Radius = 0.3
doc.recompute()

fillet2 = doc.addObject("PartDesign::Fillet", "Fillet001")
body.addObject(fillet2)
fillet2.Base = (fillet, edges_at(fillet, [(-18.4, 0, 0), (-18.4, 21.5, 0)]))
fillet2.Radius = 0.3

doc.recompute()
